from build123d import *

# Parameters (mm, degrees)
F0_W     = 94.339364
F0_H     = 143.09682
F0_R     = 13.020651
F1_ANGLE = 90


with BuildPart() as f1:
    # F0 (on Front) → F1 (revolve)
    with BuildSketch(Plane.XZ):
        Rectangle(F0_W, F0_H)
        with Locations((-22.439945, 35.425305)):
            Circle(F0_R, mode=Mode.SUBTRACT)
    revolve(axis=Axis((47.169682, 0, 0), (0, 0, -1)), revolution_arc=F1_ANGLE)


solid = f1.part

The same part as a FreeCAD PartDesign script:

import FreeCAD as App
import Part
import Sketcher
from FreeCAD import Vector
Q = App.Units.Quantity

doc = App.newDocument("Part")
params = doc.addObject("Spreadsheet::Sheet", "Params")
for row, (alias, value) in enumerate([
    ("revolution_angle", "90 deg"),
], start=1):
    params.set(f"A{row}", alias)
    params.set(f"B{row}", "=" + value)
    params.setAlias(f"B{row}", alias)

body = doc.addObject("PartDesign::Body", "Body")

sketch1 = doc.addObject("Sketcher::SketchObject", "Sketch")
body.addObject(sketch1)
sketch1.AttachmentSupport = (doc.XZ_Plane, [""])
sketch1.MapMode = "FlatFace"
sketch1.addGeometry(Part.LineSegment(Vector(-47, 72, 0), Vector(-47, -72, 0)), False)
sketch1.addGeometry(Part.LineSegment(Vector(-47, -72, 0), Vector(47, -72, 0)), False)
sketch1.addGeometry(Part.LineSegment(Vector(47, -72, 0), Vector(47, 72, 0)), False)
sketch1.addGeometry(Part.LineSegment(Vector(47, 72, 0), Vector(-47, 72, 0)), False)
sketch1.addGeometry(Part.Circle(Vector(-22, 35, 0), Vector(0, 0, 1), 13), False)
sketch1.addGeometry(Part.LineSegment(Vector(47, 72, 0), Vector(47, -72, 0)), True)
sketch1.addConstraint(Sketcher.Constraint("Coincident", 0, 2, 1, 1))
sketch1.addConstraint(Sketcher.Constraint("Coincident", 1, 2, 2, 1))
sketch1.addConstraint(Sketcher.Constraint("Coincident", 2, 2, 3, 1))
sketch1.addConstraint(Sketcher.Constraint("Coincident", 3, 2, 0, 1))
sketch1.addConstraint(Sketcher.Constraint("Vertical", 0))
sketch1.addConstraint(Sketcher.Constraint("Horizontal", 1))
sketch1.addConstraint(Sketcher.Constraint("Vertical", 2))
sketch1.addConstraint(Sketcher.Constraint("Horizontal", 3))
sketch1.addConstraint(Sketcher.Constraint("Vertical", 5))
sketch1.addConstraint(Sketcher.Constraint("Coincident", 5, 1, 2, 2))
sketch1.addConstraint(Sketcher.Constraint("Symmetric", 0, 2, 2, 2, -1, 1))
sketch1.addConstraint(Sketcher.Constraint("Horizontal", 0, 2, 5, 2))
sketch1.addConstraint(Sketcher.Constraint("Diameter", 4, Q("26.041302 mm")))
sketch1.addConstraint(Sketcher.Constraint("DistanceY", 0, 2, 0, 1, Q("143.09682 mm")))
sketch1.addConstraint(Sketcher.Constraint("DistanceX", 1, 1, 1, 2, Q("94.339364 mm")))
sketch1.addConstraint(Sketcher.Constraint("DistanceX", 4, 3, -1, 1, Q("22.439945 mm")))
sketch1.addConstraint(Sketcher.Constraint("DistanceY", -1, 1, 4, 3, Q("35.425305 mm")))
revolution = doc.addObject("PartDesign::Revolution", "Revolution")
body.addObject(revolution)
revolution.Profile = sketch1
revolution.ReferenceAxis = (sketch1, ["Axis0"])
revolution.setExpression("Angle", "Params.revolution_angle")

doc.recompute()
